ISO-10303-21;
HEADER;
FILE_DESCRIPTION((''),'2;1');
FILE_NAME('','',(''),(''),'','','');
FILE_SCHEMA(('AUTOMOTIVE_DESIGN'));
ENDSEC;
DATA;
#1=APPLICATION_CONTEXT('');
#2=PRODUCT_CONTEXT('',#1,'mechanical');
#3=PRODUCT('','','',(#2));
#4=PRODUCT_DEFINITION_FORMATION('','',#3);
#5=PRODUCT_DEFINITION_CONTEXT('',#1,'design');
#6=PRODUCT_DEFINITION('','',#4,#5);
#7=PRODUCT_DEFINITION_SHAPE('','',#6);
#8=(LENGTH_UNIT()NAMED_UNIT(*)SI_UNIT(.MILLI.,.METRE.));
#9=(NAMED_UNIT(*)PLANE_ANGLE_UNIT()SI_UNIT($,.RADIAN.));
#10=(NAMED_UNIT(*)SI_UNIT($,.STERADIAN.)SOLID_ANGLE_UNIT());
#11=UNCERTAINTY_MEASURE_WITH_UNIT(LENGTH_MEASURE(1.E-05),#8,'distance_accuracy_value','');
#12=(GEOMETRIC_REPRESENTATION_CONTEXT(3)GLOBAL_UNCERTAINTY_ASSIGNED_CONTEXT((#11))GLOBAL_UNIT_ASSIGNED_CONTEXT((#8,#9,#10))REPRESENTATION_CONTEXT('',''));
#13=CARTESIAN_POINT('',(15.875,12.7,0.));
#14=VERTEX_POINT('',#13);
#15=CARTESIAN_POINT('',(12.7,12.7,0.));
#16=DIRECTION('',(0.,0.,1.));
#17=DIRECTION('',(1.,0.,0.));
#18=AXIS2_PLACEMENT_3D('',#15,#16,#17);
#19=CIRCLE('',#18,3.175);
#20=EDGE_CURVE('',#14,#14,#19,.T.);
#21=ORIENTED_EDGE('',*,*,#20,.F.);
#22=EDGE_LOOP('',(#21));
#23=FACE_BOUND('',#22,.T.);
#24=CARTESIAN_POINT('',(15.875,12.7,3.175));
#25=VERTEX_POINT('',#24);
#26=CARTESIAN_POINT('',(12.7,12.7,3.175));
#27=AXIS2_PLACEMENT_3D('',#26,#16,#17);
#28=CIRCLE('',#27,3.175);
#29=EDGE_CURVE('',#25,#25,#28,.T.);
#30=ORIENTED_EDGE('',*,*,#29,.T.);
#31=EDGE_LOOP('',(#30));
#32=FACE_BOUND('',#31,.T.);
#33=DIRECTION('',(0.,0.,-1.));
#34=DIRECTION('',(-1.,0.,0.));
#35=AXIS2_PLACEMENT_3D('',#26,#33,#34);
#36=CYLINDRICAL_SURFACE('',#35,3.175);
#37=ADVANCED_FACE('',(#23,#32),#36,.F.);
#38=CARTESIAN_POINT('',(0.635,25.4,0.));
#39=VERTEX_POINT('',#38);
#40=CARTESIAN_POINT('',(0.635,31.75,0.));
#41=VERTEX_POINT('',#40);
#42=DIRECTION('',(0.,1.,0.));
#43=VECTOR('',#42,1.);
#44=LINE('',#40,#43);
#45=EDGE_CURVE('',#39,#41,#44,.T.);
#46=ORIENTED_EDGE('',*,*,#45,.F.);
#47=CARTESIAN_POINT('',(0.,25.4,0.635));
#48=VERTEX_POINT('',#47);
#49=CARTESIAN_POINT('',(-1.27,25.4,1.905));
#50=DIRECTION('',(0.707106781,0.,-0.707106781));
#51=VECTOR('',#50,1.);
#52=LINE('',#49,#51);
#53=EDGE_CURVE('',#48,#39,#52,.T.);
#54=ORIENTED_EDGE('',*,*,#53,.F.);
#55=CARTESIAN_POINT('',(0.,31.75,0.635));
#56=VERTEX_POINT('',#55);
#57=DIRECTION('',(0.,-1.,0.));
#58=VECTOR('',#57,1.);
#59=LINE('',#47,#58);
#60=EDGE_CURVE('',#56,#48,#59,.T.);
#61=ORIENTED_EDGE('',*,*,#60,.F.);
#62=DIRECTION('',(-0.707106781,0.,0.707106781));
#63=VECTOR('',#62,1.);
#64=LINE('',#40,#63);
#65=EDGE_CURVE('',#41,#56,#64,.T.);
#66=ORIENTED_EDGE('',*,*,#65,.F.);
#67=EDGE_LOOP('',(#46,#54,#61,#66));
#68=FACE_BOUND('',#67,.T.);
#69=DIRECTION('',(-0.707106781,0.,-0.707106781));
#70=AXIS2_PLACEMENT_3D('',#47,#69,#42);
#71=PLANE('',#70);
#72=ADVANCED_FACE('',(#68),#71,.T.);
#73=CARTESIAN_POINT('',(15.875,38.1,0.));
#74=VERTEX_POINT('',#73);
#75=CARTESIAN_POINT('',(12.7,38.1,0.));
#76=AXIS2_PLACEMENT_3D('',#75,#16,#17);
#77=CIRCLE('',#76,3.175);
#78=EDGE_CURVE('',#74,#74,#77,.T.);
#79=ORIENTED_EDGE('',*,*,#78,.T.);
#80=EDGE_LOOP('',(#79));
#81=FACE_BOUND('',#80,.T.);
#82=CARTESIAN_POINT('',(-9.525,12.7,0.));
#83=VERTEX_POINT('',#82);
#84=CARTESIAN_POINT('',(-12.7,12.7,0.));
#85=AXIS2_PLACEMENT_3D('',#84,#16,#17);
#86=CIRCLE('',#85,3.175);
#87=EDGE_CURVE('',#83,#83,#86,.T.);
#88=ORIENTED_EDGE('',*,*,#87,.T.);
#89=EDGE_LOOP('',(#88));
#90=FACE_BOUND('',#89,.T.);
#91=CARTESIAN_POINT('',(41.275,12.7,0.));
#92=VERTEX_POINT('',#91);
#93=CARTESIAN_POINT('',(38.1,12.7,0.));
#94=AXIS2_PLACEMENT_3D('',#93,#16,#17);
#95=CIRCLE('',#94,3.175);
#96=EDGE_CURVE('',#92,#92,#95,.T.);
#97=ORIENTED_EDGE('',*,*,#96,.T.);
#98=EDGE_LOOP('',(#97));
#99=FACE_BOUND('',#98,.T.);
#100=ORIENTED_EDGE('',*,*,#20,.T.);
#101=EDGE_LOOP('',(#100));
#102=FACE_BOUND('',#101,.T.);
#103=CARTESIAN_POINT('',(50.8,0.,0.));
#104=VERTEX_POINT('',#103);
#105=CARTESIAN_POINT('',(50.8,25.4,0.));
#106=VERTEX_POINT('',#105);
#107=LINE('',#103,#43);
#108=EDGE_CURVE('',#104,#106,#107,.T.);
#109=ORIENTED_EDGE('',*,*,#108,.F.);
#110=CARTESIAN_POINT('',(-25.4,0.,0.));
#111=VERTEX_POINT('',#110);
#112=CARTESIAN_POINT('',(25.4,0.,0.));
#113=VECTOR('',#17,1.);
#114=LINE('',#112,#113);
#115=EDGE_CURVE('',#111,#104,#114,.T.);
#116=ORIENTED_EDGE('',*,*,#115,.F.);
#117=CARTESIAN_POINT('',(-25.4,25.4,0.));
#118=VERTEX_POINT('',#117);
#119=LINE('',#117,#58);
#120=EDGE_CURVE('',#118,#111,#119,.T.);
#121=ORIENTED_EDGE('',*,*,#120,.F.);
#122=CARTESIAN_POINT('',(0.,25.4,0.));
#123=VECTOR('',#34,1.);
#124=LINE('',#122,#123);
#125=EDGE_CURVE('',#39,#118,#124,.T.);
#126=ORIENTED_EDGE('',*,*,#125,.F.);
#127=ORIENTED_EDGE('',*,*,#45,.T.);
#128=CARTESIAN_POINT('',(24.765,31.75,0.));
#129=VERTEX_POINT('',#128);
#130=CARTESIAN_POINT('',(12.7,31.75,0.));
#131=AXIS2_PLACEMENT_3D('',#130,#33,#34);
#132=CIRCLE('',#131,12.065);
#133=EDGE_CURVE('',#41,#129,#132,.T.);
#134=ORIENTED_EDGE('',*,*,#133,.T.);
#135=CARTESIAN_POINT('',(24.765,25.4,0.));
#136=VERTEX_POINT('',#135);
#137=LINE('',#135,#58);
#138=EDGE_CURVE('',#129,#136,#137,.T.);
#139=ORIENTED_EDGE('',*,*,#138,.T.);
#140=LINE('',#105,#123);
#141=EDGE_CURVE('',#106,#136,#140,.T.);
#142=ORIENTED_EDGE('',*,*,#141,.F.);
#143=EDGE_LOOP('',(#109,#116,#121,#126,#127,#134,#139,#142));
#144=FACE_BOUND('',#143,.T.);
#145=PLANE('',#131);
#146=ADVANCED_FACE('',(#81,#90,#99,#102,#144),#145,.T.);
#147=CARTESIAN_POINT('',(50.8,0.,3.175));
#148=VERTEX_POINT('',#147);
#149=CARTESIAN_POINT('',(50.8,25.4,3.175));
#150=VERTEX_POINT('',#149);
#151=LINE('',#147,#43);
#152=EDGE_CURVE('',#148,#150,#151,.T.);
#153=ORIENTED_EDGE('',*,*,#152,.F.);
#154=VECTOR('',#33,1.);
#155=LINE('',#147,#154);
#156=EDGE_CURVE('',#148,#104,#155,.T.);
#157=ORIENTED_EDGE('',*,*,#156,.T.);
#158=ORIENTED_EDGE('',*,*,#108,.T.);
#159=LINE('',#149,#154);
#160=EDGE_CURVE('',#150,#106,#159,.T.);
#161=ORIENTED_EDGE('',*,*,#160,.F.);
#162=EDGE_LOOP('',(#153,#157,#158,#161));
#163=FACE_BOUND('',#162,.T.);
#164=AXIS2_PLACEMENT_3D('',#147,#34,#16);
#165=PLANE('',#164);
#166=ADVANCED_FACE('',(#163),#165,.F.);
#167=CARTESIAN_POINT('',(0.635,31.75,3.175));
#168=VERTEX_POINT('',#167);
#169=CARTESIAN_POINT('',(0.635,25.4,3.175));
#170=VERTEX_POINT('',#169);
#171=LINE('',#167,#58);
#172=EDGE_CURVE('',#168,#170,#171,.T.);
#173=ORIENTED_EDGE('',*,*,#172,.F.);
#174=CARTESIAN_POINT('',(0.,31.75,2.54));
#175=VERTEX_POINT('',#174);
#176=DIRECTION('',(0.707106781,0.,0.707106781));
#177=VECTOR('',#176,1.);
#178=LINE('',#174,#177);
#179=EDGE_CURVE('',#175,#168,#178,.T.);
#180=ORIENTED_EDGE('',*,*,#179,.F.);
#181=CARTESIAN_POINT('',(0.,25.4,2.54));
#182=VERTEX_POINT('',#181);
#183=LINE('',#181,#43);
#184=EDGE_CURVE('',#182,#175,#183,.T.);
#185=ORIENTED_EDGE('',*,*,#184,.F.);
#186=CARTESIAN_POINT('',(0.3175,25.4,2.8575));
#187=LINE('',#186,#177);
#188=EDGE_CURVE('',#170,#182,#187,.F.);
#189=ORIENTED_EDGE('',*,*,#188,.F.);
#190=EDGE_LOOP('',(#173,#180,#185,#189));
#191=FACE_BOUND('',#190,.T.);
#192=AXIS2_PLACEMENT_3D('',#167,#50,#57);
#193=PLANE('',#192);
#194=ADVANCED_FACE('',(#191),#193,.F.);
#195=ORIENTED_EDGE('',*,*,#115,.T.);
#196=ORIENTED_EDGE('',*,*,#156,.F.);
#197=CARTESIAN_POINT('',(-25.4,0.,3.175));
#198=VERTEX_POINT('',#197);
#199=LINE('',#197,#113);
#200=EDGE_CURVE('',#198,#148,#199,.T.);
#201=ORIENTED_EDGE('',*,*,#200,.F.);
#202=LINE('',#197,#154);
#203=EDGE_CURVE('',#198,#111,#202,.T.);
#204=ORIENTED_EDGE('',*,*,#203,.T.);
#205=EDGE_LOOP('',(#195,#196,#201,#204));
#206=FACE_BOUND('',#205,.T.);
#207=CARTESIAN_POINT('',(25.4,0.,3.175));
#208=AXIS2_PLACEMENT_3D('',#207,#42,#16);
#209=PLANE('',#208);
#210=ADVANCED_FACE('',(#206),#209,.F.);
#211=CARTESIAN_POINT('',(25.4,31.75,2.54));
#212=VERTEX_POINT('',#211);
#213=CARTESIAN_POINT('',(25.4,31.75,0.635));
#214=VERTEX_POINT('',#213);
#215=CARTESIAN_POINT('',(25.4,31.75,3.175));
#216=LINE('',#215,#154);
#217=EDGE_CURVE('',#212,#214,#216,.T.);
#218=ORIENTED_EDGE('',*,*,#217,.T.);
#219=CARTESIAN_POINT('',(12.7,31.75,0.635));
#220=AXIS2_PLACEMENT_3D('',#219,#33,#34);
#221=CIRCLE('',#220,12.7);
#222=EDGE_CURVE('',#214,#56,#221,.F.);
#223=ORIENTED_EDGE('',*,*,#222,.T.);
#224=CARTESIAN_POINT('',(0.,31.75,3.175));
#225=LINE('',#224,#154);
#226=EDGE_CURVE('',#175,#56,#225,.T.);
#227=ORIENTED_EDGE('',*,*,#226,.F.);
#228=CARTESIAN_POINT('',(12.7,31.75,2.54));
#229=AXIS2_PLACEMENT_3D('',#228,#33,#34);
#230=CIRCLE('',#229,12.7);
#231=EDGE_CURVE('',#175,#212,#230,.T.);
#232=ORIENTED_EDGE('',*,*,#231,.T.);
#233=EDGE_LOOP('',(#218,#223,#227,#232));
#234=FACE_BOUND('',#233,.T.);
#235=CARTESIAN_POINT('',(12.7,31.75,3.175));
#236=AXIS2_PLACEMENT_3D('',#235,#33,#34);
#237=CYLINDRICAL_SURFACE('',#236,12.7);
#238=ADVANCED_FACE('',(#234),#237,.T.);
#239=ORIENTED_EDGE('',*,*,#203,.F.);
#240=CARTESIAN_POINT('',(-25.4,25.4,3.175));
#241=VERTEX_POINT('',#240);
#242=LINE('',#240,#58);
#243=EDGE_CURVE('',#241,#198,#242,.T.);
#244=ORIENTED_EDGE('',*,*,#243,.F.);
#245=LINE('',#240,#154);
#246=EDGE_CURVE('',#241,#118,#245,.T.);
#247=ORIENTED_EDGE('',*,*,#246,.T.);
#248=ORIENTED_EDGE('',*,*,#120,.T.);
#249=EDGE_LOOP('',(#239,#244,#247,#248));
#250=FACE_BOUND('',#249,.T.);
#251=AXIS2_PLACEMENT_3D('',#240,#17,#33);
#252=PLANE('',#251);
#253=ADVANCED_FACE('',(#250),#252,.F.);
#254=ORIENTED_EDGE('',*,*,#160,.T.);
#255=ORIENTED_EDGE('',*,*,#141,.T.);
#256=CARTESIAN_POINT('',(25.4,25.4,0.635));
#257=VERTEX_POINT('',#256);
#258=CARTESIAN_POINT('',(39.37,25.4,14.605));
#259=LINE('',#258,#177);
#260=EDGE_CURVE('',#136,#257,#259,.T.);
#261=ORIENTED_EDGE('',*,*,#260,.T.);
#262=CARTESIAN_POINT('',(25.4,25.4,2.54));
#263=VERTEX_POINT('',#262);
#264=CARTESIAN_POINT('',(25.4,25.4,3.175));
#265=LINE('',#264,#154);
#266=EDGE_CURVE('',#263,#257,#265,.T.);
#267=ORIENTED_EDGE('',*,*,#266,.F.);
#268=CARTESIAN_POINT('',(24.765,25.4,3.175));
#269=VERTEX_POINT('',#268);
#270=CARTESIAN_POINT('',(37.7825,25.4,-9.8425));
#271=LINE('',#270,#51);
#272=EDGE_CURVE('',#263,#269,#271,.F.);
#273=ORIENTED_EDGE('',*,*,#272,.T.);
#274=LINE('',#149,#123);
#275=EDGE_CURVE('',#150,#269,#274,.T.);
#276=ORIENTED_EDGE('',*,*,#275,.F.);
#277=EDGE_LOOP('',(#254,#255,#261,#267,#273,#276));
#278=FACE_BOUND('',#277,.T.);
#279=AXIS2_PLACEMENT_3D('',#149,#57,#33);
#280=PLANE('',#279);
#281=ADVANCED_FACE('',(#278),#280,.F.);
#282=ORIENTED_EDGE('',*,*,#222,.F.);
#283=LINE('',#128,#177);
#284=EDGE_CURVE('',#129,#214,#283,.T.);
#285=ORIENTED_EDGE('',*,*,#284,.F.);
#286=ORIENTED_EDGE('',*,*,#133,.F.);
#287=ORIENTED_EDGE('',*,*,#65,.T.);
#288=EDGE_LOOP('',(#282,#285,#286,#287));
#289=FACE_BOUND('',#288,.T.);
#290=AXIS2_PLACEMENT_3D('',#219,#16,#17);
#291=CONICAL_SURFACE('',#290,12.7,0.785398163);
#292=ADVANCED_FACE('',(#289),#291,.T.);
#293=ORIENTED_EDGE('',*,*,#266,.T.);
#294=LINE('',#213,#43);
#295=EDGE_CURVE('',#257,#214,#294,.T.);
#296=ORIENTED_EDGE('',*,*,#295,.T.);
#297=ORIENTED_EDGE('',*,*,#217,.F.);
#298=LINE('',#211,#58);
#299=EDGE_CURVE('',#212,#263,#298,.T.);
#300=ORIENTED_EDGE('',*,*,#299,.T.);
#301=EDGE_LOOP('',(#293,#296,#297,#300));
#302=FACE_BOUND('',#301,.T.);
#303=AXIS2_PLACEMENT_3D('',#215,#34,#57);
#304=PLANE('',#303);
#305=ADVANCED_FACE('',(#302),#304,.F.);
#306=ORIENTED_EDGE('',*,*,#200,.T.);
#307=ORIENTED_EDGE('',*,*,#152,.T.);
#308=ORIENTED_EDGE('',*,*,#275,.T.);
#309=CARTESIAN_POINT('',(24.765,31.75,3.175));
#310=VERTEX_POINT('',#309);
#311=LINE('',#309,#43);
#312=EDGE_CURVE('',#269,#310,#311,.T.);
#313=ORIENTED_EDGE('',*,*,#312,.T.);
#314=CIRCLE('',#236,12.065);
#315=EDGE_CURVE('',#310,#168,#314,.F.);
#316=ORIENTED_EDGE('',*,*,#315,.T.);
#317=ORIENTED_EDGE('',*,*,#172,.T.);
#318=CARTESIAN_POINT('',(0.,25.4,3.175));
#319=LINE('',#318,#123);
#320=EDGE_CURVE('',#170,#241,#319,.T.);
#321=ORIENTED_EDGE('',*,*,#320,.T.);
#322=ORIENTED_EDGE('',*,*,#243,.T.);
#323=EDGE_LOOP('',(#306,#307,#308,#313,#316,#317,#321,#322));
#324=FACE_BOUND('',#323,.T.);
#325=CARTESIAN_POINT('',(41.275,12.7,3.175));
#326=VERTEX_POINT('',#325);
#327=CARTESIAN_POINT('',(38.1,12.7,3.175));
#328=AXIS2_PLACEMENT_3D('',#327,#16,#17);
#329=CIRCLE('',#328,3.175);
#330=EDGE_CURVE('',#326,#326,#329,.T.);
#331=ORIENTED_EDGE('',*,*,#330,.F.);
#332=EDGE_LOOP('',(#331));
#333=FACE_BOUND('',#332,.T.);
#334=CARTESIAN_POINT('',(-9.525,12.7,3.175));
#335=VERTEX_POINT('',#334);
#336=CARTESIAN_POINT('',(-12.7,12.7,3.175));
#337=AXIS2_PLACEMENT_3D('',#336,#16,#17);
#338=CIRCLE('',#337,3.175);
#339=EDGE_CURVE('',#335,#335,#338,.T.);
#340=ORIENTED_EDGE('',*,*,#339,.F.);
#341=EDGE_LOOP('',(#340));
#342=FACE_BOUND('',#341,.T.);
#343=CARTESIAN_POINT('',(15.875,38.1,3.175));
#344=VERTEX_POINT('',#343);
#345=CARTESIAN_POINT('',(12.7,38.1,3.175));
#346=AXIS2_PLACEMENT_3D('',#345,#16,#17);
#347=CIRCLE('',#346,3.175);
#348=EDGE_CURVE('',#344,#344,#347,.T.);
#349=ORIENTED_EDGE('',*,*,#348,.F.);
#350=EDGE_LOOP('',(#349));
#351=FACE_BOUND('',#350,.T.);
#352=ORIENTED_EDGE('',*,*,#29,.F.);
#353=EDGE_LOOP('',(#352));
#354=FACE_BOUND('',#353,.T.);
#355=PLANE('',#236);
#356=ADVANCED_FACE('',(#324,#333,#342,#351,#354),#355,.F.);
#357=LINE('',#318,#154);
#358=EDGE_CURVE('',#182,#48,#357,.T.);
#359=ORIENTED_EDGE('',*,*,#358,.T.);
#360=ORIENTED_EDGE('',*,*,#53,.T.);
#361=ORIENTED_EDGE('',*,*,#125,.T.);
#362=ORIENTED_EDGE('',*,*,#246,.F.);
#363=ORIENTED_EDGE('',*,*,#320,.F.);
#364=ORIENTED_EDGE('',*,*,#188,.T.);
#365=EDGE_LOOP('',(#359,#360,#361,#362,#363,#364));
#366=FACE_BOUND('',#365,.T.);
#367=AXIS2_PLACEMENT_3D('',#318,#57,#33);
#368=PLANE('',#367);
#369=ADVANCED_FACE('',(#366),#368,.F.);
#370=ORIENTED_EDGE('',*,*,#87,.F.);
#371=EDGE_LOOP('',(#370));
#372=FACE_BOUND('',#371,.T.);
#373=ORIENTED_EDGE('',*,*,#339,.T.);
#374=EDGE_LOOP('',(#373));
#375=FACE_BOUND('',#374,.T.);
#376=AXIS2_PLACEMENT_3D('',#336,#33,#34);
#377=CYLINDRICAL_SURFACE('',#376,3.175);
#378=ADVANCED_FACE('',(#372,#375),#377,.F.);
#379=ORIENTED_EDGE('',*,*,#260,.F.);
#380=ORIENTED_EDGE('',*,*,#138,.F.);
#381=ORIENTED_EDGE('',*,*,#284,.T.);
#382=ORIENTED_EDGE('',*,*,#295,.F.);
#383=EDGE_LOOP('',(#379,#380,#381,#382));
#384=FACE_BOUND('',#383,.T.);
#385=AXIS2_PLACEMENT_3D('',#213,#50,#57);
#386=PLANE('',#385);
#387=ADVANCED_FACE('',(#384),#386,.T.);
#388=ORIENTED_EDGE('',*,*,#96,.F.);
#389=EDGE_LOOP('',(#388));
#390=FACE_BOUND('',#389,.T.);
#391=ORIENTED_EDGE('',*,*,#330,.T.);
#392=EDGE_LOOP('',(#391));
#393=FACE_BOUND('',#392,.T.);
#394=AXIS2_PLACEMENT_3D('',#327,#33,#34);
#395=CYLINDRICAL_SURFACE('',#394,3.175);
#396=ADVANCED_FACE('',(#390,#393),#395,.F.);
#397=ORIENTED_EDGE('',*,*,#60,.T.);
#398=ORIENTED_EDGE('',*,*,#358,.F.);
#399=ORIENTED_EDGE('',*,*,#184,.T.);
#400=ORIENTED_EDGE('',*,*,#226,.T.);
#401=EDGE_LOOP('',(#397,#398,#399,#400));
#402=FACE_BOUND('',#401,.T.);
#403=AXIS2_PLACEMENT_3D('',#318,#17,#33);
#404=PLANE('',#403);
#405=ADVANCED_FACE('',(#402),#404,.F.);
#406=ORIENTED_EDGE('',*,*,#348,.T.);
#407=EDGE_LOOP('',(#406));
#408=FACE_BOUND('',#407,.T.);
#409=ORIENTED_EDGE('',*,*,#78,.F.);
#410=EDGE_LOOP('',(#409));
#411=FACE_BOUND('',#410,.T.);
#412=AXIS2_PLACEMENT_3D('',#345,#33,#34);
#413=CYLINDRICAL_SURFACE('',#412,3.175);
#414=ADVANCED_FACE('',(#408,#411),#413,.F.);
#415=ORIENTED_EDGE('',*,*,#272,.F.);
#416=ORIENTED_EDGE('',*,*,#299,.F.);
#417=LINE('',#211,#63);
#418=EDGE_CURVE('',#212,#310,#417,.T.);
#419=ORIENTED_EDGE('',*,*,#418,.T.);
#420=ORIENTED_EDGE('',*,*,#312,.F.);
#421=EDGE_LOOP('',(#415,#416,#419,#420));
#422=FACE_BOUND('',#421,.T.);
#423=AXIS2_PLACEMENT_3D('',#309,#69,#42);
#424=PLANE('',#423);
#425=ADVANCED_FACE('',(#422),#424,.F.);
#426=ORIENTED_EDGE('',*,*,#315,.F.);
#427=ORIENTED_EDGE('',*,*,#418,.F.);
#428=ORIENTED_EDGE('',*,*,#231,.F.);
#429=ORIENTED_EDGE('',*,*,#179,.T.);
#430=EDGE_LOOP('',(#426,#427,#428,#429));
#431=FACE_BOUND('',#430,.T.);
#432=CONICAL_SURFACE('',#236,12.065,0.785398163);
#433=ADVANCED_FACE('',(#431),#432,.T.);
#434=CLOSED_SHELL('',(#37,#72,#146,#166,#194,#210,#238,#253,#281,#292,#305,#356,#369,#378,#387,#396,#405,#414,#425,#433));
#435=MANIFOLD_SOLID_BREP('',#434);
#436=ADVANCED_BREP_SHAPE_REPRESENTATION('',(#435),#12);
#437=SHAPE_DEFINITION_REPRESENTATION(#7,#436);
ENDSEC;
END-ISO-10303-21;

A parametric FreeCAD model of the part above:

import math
import FreeCAD as App
import Part
import Sketcher
from FreeCAD import Vector
Q = App.Units.Quantity


def edges_at(feature, points):
    """Names of the edges that pass closest to the given points."""
    edges = feature.Shape.Edges
    near = lambda p: min(range(len(edges)), key=lambda i: edges[i].distToShape(Part.Vertex(*p))[0])
    return sorted({f"Edge{near(p) + 1}" for p in points})

doc = App.newDocument("Part")
body = doc.addObject("PartDesign::Body", "Body")

sketch1 = doc.addObject("Sketcher::SketchObject", "Sketch")
body.addObject(sketch1)
sketch1.AttachmentSupport = (doc.XY_Plane, [""])
sketch1.MapMode = "FlatFace"
sketch1.addGeometry(Part.LineSegment(Vector(50.8, 0, 0), Vector(50.8, 25.4, 0)), False)
sketch1.addGeometry(Part.LineSegment(Vector(50.8, 25.4, 0), Vector(25.4, 25.4, 0)), False)
sketch1.addGeometry(Part.LineSegment(Vector(25.4, 25.4, 0), Vector(25.4, 31.8, 0)), False)
sketch1.addGeometry(Part.ArcOfCircle(Part.Circle(Vector(12.7, 31.8, 0), Vector(0, 0, 1), 12.7), math.radians(0), math.radians(180)), False)
sketch1.addGeometry(Part.LineSegment(Vector(0, 31.8, 0), Vector(0, 25.4, 0)), False)
sketch1.addGeometry(Part.LineSegment(Vector(0, 25.4, 0), Vector(-25.4, 25.4, 0)), False)
sketch1.addGeometry(Part.LineSegment(Vector(-25.4, 25.4, 0), Vector(-25.4, 0, 0)), False)
sketch1.addGeometry(Part.LineSegment(Vector(-25.4, 0, 0), Vector(50.8, 0, 0)), False)
sketch1.addGeometry(Part.Circle(Vector(-12.7, 12.7, 0), Vector(0, 0, 1), 3.2), False)
sketch1.addGeometry(Part.Circle(Vector(12.7, 12.7, 0), Vector(0, 0, 1), 3.2), False)
sketch1.addGeometry(Part.Circle(Vector(38.1, 12.7, 0), Vector(0, 0, 1), 3.2), False)
sketch1.addGeometry(Part.Circle(Vector(12.7, 38.1, 0), Vector(0, 0, 1), 3.2), False)
sketch1.addConstraint(Sketcher.Constraint("Coincident", 0, 2, 1, 1))
sketch1.addConstraint(Sketcher.Constraint("Coincident", 1, 2, 2, 1))
sketch1.addConstraint(Sketcher.Constraint("Tangent", 2, 2, 3, 1))
sketch1.addConstraint(Sketcher.Constraint("Tangent", 3, 2, 4, 1))
sketch1.addConstraint(Sketcher.Constraint("Coincident", 4, 2, 5, 1))
sketch1.addConstraint(Sketcher.Constraint("Coincident", 5, 2, 6, 1))
sketch1.addConstraint(Sketcher.Constraint("Coincident", 6, 2, 7, 1))
sketch1.addConstraint(Sketcher.Constraint("Coincident", 7, 2, 0, 1))
sketch1.addConstraint(Sketcher.Constraint("Vertical", 0))
sketch1.addConstraint(Sketcher.Constraint("Horizontal", 1))
sketch1.addConstraint(Sketcher.Constraint("Vertical", 2))
sketch1.addConstraint(Sketcher.Constraint("Vertical", 4))
sketch1.addConstraint(Sketcher.Constraint("Horizontal", 5))
sketch1.addConstraint(Sketcher.Constraint("Vertical", 6))
sketch1.addConstraint(Sketcher.Constraint("Horizontal", 7))
sketch1.addConstraint(Sketcher.Constraint("Equal", 8, 9))
sketch1.addConstraint(Sketcher.Constraint("Equal", 9, 10))
sketch1.addConstraint(Sketcher.Constraint("Equal", 10, 11))
sketch1.addConstraint(Sketcher.Constraint("Symmetric", 8, 3, 9, 3, -2))
sketch1.addConstraint(Sketcher.Constraint("Symmetric", 1, 2, 5, 2, -2))
sketch1.addConstraint(Sketcher.Constraint("PointOnObject", 3, 2, -2))
sketch1.addConstraint(Sketcher.Constraint("PointOnObject", 6, 2, -1))
sketch1.addConstraint(Sketcher.Constraint("Horizontal", 9, 3, 10, 3))
sketch1.addConstraint(Sketcher.Constraint("Vertical", 3, 3, 9, 3))
sketch1.addConstraint(Sketcher.Constraint("Vertical", 9, 3, 11, 3))
sketch1.addConstraint(Sketcher.Constraint("Equal", 1, 5))
sketch1.addConstraint(Sketcher.Constraint("Equal", 5, 0))
sketch1.addConstraint(Sketcher.Constraint("Radius", 3, Q("0.5 in")))
sketch1.addConstraint(Sketcher.Constraint("Diameter", 8, Q("0.25 in")))
sketch1.addConstraint(Sketcher.Constraint("DistanceX", 9, 3, 10, 3, Q("1 in")))
sketch1.addConstraint(Sketcher.Constraint("DistanceY", 9, 3, 11, 3, Q("1 in")))
sketch1.addConstraint(Sketcher.Constraint("DistanceY", 2, 1, 2, 2, Q("0.25 in")))
sketch1.addConstraint(Sketcher.Constraint("DistanceY", -1, 1, 8, 3, Q("0.5 in")))
pad1 = doc.addObject("PartDesign::Pad", "Pad")
body.addObject(pad1)
pad1.Profile = sketch1
pad1.Length = Q("0.125 in")
doc.recompute()

chamfer = doc.addObject("PartDesign::Chamfer", "Chamfer")
body.addObject(chamfer)
chamfer.Base = (pad1, edges_at(pad1, [
    (0, 28.575, 0),
    (12.7, 44.45, 0),
    (25.4, 28.575, 0),
    (25.4, 28.575, 3.175),
    (12.7, 44.45, 3.175),
    (0, 28.575, 3.175),
]))
chamfer.Size = Q("0.025 in")

doc.recompute()
